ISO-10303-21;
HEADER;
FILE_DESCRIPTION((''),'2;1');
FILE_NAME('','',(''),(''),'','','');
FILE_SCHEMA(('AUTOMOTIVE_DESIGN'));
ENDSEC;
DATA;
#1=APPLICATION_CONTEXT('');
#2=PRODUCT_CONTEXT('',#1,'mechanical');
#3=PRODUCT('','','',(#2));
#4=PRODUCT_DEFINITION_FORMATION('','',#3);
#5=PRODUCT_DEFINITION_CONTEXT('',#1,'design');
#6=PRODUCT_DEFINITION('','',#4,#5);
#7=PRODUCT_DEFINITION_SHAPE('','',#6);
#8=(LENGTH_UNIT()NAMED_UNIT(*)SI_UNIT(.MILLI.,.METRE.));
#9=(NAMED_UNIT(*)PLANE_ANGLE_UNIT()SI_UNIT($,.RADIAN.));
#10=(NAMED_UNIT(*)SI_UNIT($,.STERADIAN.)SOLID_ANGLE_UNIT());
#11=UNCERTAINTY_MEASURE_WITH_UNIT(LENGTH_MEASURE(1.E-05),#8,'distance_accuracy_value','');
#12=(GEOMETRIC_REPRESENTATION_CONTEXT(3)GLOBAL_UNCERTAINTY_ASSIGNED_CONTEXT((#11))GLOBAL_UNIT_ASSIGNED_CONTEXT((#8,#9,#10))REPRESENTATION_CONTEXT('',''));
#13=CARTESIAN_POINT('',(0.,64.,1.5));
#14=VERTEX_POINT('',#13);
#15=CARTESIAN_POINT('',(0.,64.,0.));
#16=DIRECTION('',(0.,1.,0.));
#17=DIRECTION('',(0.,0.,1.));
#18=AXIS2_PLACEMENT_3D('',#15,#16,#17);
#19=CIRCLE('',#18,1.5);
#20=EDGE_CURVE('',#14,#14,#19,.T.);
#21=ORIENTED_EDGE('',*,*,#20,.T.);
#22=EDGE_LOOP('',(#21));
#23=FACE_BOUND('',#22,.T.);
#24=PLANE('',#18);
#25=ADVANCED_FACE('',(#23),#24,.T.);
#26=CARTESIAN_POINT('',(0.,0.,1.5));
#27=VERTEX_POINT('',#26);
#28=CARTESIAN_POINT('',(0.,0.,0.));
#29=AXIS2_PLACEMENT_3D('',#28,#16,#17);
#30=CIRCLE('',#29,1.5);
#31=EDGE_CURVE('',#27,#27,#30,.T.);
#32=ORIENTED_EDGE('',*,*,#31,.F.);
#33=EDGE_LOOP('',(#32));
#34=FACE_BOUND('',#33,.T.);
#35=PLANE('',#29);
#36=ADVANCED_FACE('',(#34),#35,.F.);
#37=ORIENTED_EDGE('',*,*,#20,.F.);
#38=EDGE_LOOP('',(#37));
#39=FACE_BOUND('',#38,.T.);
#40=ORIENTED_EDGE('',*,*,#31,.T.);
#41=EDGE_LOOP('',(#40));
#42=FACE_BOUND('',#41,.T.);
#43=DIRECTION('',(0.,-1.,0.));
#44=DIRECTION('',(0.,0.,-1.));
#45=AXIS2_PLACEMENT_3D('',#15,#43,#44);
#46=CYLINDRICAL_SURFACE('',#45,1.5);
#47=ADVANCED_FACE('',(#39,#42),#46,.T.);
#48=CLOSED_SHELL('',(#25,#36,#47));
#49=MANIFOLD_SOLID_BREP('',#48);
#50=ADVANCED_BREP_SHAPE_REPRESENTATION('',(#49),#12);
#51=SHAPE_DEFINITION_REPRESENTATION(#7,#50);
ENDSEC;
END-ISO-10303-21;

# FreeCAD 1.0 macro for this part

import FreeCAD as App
import Part
import Sketcher

V = App.Vector

doc = App.newDocument("Part")
body = doc.addObject("PartDesign::Body", "Body")

sketch1 = body.newObject("Sketcher::SketchObject", "Sketch")
sketch1.AttachmentSupport = (doc.getObject("XZ_Plane"), [""])
sketch1.MapMode = "FlatFace"
sketch1.addGeometry(Part.Circle(V(0, 0, 0), V(0, 0, 1), 1.5), False)
sketch1.addConstraint([
    Sketcher.Constraint("Coincident", 0, 3, -1, 1),
    Sketcher.Constraint("Diameter", 0, 3.0),
])
pad1 = body.newObject("PartDesign::Pad", "Pad")
pad1.Profile = sketch1
pad1.Length = 64
pad1.Reversed = True

doc.recompute()
